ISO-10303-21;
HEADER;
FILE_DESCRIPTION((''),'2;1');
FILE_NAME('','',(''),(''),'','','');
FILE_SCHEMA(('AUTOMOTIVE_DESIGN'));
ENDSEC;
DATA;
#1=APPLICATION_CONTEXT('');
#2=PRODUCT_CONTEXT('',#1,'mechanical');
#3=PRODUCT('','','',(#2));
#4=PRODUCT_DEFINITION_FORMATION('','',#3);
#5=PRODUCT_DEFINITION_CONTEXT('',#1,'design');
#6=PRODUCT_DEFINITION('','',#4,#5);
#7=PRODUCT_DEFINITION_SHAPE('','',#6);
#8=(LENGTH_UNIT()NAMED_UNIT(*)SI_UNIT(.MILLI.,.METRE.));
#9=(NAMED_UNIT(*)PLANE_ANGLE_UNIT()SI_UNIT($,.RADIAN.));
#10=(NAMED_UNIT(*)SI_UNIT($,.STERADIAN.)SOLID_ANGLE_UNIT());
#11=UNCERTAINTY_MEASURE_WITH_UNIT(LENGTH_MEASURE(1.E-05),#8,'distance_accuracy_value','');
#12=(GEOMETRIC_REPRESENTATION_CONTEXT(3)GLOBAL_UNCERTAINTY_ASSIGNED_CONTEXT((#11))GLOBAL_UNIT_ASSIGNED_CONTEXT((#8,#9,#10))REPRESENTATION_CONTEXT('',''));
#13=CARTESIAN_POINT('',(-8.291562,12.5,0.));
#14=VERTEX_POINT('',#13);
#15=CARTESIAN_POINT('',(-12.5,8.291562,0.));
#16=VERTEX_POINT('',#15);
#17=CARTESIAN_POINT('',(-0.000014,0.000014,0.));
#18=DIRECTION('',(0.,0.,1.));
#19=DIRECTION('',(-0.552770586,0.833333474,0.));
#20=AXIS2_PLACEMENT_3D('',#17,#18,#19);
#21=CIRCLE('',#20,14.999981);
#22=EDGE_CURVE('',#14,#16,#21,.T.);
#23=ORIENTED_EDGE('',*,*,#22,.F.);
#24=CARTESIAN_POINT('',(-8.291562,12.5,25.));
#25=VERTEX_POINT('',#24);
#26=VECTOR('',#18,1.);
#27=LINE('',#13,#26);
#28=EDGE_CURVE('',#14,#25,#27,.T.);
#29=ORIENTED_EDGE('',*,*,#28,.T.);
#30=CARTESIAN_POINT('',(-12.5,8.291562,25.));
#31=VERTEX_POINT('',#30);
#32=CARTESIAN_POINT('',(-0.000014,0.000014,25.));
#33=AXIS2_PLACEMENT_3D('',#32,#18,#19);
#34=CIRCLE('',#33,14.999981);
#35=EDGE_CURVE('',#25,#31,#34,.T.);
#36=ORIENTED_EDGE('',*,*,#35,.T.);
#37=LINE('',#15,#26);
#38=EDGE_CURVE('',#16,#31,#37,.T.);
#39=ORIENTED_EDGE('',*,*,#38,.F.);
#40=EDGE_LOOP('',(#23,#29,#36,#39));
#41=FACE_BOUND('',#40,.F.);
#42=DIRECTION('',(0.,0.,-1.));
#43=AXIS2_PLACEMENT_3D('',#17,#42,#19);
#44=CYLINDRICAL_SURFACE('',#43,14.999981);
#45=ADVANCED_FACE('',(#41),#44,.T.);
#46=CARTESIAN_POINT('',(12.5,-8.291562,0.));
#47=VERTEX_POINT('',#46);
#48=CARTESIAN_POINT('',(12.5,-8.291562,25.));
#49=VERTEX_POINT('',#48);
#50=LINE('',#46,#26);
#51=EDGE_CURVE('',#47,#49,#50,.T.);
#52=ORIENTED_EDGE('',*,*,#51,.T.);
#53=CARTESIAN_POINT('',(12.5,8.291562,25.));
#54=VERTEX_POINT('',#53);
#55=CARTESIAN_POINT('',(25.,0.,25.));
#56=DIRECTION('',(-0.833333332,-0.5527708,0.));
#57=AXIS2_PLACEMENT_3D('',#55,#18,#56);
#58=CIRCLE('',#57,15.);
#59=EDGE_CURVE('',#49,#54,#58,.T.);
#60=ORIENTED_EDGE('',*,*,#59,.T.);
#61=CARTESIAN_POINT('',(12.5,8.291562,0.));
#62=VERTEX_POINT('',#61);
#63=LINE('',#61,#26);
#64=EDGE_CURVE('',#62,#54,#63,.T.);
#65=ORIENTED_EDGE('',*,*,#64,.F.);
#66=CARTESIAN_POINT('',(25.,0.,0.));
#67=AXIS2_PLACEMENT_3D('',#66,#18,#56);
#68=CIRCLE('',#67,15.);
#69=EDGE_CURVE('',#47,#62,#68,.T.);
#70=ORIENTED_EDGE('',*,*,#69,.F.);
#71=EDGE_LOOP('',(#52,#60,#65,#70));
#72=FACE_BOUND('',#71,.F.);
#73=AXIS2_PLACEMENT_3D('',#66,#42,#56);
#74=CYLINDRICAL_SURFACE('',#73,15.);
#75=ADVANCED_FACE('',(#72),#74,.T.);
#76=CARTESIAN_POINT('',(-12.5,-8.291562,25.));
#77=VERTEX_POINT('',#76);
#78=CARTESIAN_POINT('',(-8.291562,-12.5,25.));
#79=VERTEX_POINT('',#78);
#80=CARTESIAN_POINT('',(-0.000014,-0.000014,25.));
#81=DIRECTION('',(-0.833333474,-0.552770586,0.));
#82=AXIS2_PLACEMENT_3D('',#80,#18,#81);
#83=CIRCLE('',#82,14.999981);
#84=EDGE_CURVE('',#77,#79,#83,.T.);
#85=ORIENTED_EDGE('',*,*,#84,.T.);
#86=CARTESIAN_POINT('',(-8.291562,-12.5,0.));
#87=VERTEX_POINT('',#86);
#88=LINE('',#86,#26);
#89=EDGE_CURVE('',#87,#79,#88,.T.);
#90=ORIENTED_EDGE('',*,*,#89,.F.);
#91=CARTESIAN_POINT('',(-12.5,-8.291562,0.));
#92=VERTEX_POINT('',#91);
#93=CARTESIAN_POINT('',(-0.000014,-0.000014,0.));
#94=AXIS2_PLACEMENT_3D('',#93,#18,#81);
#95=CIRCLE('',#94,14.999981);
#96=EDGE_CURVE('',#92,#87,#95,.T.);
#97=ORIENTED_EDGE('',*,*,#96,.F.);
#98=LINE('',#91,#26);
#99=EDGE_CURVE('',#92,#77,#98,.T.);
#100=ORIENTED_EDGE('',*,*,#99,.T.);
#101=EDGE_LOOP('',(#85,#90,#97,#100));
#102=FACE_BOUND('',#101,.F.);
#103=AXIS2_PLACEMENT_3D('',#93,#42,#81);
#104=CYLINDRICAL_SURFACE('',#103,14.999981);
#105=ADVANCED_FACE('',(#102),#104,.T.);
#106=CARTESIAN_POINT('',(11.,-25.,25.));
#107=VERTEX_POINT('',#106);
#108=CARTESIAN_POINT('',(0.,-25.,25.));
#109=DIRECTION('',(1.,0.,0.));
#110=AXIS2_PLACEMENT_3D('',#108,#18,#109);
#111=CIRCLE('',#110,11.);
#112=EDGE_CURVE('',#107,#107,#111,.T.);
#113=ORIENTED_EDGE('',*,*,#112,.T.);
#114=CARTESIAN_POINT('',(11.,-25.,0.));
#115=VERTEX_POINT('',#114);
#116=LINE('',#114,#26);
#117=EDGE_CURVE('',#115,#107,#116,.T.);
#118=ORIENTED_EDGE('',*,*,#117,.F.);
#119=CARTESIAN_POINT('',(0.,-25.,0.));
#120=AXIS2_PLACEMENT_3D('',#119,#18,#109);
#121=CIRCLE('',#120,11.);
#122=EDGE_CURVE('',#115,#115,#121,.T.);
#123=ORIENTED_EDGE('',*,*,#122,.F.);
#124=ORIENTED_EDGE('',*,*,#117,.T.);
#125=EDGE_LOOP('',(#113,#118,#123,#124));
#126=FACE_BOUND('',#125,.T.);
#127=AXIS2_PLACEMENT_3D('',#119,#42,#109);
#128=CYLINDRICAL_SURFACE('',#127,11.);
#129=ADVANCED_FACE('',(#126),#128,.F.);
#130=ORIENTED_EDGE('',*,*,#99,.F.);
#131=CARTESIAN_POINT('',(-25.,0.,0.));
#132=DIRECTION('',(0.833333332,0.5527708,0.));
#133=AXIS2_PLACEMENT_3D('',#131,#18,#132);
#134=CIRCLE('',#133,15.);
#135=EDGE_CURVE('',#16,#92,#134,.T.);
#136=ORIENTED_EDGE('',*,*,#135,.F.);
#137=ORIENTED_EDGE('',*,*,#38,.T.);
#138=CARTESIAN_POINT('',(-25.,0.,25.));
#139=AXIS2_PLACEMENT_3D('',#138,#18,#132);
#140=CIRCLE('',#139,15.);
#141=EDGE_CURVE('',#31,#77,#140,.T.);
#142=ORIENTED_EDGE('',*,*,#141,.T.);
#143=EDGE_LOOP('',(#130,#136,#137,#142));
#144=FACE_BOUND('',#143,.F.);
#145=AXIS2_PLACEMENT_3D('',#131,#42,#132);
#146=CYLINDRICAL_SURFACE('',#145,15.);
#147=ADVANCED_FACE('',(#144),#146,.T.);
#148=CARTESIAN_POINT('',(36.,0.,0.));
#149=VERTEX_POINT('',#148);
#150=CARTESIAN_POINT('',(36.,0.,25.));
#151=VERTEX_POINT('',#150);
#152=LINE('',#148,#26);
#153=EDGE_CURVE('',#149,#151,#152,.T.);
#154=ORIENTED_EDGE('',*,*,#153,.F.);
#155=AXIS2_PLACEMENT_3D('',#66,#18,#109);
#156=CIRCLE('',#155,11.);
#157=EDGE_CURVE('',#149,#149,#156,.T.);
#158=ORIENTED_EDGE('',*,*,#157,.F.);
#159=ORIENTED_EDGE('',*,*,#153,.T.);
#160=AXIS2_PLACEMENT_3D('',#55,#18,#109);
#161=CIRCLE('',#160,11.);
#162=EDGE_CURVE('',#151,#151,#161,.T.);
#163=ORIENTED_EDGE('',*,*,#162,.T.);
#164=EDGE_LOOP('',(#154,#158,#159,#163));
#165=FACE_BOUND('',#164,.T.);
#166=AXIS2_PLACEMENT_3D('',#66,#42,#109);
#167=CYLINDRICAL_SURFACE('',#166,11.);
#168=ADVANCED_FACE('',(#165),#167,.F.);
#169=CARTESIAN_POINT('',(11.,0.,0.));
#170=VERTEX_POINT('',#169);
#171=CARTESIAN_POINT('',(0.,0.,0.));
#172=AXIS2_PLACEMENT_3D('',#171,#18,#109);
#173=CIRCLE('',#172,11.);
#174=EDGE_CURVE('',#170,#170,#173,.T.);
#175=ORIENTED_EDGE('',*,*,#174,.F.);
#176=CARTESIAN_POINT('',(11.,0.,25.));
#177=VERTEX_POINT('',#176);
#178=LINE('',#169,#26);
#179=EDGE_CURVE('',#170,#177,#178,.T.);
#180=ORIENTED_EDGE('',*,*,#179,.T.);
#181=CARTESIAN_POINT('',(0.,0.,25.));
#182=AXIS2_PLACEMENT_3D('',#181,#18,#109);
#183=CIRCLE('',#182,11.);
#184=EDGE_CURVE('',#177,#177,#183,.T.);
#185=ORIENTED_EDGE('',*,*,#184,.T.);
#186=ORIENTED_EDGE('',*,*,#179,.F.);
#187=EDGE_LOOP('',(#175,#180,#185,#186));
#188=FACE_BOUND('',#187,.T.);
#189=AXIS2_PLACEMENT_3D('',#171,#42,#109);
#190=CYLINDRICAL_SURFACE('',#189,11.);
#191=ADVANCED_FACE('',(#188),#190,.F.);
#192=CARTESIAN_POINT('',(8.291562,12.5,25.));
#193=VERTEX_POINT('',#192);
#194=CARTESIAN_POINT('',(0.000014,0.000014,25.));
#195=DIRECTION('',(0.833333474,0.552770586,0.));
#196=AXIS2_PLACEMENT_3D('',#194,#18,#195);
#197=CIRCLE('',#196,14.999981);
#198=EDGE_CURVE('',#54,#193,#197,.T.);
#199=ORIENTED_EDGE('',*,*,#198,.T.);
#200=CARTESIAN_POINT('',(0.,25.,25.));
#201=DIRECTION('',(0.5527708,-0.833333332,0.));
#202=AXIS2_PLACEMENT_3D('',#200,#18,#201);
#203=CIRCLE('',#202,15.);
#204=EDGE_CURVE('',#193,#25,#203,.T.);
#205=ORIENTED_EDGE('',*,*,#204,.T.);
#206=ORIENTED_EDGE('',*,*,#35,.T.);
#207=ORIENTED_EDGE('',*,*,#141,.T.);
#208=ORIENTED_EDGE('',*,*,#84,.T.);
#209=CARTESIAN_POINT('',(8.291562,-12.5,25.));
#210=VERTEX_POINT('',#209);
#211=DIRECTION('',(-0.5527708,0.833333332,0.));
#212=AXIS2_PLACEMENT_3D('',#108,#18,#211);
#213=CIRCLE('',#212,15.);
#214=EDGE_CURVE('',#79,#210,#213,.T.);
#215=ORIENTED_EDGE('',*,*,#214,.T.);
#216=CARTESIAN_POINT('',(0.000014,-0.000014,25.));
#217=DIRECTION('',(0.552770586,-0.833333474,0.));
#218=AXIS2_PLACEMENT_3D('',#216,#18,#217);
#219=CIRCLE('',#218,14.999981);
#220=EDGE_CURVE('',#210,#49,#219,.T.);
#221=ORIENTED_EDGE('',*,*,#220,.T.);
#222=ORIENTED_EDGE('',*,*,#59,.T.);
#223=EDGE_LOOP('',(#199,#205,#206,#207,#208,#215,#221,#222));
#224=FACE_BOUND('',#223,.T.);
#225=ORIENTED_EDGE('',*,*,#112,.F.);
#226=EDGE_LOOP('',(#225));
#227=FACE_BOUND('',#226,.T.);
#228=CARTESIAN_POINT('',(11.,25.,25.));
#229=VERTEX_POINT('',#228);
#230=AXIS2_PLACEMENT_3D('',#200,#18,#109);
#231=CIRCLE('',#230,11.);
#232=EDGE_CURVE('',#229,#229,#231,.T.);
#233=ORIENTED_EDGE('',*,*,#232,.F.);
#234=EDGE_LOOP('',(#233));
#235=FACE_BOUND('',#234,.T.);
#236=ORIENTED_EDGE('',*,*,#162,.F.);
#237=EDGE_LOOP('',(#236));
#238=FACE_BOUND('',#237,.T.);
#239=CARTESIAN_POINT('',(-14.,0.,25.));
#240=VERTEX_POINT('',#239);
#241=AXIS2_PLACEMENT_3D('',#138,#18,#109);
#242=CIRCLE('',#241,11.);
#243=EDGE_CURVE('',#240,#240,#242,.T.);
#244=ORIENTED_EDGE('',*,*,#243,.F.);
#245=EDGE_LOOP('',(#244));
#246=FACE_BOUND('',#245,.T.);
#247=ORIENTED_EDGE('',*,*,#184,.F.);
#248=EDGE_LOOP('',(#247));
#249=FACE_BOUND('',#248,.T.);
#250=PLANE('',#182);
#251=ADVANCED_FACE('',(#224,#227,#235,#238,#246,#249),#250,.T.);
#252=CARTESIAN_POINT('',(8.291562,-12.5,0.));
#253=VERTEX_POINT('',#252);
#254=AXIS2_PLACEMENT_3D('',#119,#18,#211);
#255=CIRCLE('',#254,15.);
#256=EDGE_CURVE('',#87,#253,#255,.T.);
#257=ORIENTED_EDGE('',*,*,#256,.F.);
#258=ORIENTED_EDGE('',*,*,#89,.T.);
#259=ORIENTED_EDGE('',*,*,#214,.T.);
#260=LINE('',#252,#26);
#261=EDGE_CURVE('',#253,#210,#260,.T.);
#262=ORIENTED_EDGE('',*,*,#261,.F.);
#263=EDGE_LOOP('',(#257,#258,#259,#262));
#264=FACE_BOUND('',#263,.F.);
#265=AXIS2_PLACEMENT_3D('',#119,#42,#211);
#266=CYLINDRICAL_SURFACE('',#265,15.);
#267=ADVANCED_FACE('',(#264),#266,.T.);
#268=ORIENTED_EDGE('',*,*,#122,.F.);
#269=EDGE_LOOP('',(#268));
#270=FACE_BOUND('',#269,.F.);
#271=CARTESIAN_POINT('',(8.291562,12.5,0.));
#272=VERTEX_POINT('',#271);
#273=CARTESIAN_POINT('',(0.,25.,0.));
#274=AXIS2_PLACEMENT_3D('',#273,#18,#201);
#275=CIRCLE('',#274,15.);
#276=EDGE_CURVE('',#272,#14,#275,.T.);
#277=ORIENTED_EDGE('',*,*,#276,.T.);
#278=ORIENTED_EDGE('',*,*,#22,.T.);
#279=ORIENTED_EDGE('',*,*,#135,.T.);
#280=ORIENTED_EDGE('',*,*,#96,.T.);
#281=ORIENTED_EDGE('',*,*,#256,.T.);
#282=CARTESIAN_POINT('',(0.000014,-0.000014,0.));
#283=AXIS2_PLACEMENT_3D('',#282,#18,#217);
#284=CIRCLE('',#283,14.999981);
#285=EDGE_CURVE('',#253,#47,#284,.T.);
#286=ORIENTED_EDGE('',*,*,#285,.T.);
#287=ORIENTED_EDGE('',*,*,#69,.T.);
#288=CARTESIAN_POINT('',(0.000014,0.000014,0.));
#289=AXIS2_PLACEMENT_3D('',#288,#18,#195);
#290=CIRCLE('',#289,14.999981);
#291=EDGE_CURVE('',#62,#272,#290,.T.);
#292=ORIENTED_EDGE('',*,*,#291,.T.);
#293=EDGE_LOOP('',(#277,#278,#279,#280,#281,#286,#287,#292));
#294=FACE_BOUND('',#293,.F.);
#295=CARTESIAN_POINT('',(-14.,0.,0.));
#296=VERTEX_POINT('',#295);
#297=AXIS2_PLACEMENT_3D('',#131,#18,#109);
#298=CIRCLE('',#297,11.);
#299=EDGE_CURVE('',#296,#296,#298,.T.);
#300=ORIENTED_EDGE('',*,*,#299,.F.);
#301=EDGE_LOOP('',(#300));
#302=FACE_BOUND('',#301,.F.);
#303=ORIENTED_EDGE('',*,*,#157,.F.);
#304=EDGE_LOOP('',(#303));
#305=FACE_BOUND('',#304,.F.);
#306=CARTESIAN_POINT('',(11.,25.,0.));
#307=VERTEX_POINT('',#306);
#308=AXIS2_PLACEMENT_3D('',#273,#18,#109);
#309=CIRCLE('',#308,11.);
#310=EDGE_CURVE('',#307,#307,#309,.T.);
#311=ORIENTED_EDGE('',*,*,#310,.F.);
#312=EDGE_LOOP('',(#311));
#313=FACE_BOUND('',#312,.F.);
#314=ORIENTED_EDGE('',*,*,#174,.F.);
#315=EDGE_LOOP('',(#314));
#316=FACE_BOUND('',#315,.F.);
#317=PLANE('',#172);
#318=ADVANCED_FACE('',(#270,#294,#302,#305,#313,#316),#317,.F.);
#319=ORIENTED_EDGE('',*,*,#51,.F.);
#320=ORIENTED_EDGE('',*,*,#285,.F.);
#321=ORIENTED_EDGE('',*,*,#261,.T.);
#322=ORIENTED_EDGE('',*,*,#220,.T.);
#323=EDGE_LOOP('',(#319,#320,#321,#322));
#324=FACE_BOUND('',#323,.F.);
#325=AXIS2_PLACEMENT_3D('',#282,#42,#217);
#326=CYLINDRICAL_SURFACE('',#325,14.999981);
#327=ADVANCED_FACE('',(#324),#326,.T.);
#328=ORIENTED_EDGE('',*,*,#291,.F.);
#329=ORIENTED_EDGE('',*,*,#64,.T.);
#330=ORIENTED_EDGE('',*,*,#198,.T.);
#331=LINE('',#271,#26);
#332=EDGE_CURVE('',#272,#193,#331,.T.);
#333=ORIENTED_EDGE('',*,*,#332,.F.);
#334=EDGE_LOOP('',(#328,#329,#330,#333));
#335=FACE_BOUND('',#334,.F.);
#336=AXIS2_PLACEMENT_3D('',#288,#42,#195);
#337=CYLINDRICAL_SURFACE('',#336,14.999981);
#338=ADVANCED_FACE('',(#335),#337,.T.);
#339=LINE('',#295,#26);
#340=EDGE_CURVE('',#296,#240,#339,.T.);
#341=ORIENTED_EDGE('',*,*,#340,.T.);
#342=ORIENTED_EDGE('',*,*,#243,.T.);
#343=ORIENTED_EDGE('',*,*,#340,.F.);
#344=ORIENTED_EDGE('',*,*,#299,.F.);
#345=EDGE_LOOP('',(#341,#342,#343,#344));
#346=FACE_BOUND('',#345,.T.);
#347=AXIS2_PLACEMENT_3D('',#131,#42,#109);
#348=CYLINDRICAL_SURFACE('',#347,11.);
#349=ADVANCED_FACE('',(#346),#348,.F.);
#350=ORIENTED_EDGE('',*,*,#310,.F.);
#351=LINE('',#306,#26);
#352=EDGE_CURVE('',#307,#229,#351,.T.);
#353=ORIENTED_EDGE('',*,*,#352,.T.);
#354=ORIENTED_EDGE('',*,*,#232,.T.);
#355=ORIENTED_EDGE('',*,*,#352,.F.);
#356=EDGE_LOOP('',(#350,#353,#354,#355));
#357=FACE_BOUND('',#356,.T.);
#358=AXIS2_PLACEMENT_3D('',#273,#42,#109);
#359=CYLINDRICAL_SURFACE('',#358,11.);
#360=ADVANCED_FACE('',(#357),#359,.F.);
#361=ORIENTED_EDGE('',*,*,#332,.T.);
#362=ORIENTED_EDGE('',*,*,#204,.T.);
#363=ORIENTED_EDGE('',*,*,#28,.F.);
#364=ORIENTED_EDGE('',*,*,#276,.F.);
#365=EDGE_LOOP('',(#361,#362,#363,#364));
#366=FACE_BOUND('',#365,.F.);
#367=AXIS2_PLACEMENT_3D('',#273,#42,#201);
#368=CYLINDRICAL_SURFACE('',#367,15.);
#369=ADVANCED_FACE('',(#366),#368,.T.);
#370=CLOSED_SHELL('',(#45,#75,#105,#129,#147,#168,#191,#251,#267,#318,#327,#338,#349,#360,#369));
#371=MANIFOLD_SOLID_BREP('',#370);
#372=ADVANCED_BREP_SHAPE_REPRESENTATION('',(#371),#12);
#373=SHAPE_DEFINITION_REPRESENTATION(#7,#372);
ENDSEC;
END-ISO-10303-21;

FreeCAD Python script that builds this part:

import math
import FreeCAD as App
import Part
import Sketcher
Q = App.Units.Quantity

doc = App.newDocument("Part")
body = doc.addObject("PartDesign::Body", "Body")

sketch1 = doc.addObject("Sketcher::SketchObject", "Sketch")
body.addObject(sketch1)
sketch1.AttachmentSupport = (doc.XY_Plane, [""])
sketch1.MapMode = "FlatFace"
sketch1.addGeometry(Part.ArcOfCircle(Part.Circle(App.Vector(25, 0, 0), App.Vector(0, 0, 1), 15), math.radians(-146), math.radians(146)), False)
sketch1.addGeometry(Part.ArcOfCircle(Part.Circle(App.Vector(0, 0, 0), App.Vector(0, 0, 1), 15), math.radians(34), math.radians(56)), False)
sketch1.addGeometry(Part.ArcOfCircle(Part.Circle(App.Vector(0, 25, 0), App.Vector(0, 0, 1), 15), math.radians(-56), math.radians(236)), False)
sketch1.addGeometry(Part.ArcOfCircle(Part.Circle(App.Vector(0, 0, 0), App.Vector(0, 0, 1), 15), math.radians(124), math.radians(146)), False)
sketch1.addGeometry(Part.ArcOfCircle(Part.Circle(App.Vector(-25, 0, 0), App.Vector(0, 0, 1), 15), math.radians(34), math.radians(326)), False)
sketch1.addGeometry(Part.ArcOfCircle(Part.Circle(App.Vector(0, 0, 0), App.Vector(0, 0, 1), 15), math.radians(-146), math.radians(-124)), False)
sketch1.addGeometry(Part.ArcOfCircle(Part.Circle(App.Vector(0, -25, 0), App.Vector(0, 0, 1), 15), math.radians(124), math.radians(416)), False)
sketch1.addGeometry(Part.ArcOfCircle(Part.Circle(App.Vector(0, 0, 0), App.Vector(0, 0, 1), 15), math.radians(-56), math.radians(-34)), False)
sketch1.addGeometry(Part.Circle(App.Vector(0, -25, 0), App.Vector(0, 0, 1), 11), False)
sketch1.addGeometry(Part.Circle(App.Vector(-25, 0, 0), App.Vector(0, 0, 1), 11), False)
sketch1.addGeometry(Part.Circle(App.Vector(0, 0, 0), App.Vector(0, 0, 1), 11), False)
sketch1.addGeometry(Part.Circle(App.Vector(25, 0, 0), App.Vector(0, 0, 1), 11), False)
sketch1.addGeometry(Part.Circle(App.Vector(0, 25, 0), App.Vector(0, 0, 1), 11), False)
sketch1.addConstraint(Sketcher.Constraint("Coincident", 0, 2, 1, 1))
sketch1.addConstraint(Sketcher.Constraint("Coincident", 1, 2, 2, 1))
sketch1.addConstraint(Sketcher.Constraint("Coincident", 2, 2, 3, 1))
sketch1.addConstraint(Sketcher.Constraint("Coincident", 3, 2, 4, 1))
sketch1.addConstraint(Sketcher.Constraint("Coincident", 4, 2, 5, 1))
sketch1.addConstraint(Sketcher.Constraint("Coincident", 5, 2, 6, 1))
sketch1.addConstraint(Sketcher.Constraint("Coincident", 6, 2, 7, 1))
sketch1.addConstraint(Sketcher.Constraint("Coincident", 7, 2, 0, 1))
sketch1.addConstraint(Sketcher.Constraint("Coincident", 10, 3, -1, 1))
sketch1.addConstraint(Sketcher.Constraint("Coincident", 8, 3, 6, 3))
sketch1.addConstraint(Sketcher.Constraint("Coincident", 9, 3, 4, 3))
sketch1.addConstraint(Sketcher.Constraint("Coincident", 11, 3, 0, 3))
sketch1.addConstraint(Sketcher.Constraint("Coincident", 12, 3, 2, 3))
sketch1.addConstraint(Sketcher.Constraint("Equal", 0, 2))
sketch1.addConstraint(Sketcher.Constraint("Equal", 1, 3))
sketch1.addConstraint(Sketcher.Constraint("Equal", 2, 4))
sketch1.addConstraint(Sketcher.Constraint("Equal", 3, 5))
sketch1.addConstraint(Sketcher.Constraint("Equal", 4, 6))
sketch1.addConstraint(Sketcher.Constraint("Equal", 5, 7))
sketch1.addConstraint(Sketcher.Constraint("Equal", 8, 9))
sketch1.addConstraint(Sketcher.Constraint("Equal", 9, 10))
sketch1.addConstraint(Sketcher.Constraint("Equal", 10, 11))
sketch1.addConstraint(Sketcher.Constraint("Equal", 11, 12))
sketch1.addConstraint(Sketcher.Constraint("Symmetric", 0, 3, 4, 3, -1, 1))
sketch1.addConstraint(Sketcher.Constraint("Symmetric", 1, 3, 5, 3, -1, 1))
sketch1.addConstraint(Sketcher.Constraint("Symmetric", 2, 3, 6, 3, -1, 1))
sketch1.addConstraint(Sketcher.Constraint("Symmetric", 3, 3, 7, 3, -1, 1))
sketch1.addConstraint(Sketcher.Constraint("Symmetric", 1, 3, 3, 3, -2))
sketch1.addConstraint(Sketcher.Constraint("PointOnObject", 0, 3, -1))
sketch1.addConstraint(Sketcher.Constraint("PointOnObject", 2, 3, -2))
sketch1.addConstraint(Sketcher.Constraint("Diameter", 8, Q("22 mm")))
sketch1.addConstraint(Sketcher.Constraint("Radius", 0, Q("15 mm")))
sketch1.addConstraint(Sketcher.Constraint("DistanceX", -1, 1, 0, 3, Q("25 mm")))
sketch1.addConstraint(Sketcher.Constraint("DistanceY", -1, 1, 2, 3, Q("25 mm")))
sketch1.addConstraint(Sketcher.Constraint("DistanceX", -1, 1, 0, 2, Q("12.5 mm")))
sketch1.addConstraint(Sketcher.Constraint("DistanceY", -1, 1, 1, 2, Q("12.5 mm")))
sketch1.addConstraint(Sketcher.Constraint("Radius", 1, Q("14.999981 mm")))
pad1 = doc.addObject("PartDesign::Pad", "Pad")
body.addObject(pad1)
pad1.Profile = sketch1
pad1.Length = 25

doc.recompute()
